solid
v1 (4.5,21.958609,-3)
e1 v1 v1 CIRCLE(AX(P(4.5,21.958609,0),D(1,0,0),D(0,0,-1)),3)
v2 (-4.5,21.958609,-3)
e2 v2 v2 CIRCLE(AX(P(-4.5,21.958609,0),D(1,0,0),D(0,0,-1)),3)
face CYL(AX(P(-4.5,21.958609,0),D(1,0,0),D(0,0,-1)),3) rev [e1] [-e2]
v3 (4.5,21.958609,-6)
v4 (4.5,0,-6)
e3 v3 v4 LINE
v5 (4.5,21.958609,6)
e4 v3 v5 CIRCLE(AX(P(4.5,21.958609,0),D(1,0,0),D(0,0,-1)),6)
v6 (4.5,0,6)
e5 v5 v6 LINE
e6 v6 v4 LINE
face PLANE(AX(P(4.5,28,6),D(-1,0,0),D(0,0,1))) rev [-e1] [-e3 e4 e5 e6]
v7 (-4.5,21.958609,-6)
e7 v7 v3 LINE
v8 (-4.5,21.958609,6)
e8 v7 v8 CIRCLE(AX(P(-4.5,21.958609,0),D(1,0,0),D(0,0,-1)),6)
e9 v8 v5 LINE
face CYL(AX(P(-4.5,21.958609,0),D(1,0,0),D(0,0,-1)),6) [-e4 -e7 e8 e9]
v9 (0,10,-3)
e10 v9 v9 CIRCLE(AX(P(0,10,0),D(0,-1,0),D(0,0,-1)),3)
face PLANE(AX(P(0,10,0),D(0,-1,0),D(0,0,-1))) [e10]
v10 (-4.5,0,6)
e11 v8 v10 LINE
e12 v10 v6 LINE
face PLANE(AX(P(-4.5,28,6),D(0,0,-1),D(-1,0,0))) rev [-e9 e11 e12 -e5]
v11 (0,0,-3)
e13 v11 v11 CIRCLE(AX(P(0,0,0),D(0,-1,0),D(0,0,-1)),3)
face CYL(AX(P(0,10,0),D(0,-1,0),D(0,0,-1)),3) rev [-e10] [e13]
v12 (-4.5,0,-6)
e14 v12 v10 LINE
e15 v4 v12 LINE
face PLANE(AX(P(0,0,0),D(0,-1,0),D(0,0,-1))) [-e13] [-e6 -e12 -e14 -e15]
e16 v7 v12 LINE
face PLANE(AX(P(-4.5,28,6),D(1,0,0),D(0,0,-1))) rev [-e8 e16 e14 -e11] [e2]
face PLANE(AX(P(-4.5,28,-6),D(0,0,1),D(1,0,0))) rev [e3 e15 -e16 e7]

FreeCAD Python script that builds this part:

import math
import FreeCAD as App
import Part
import Sketcher
from FreeCAD import Vector
Q = App.Units.Quantity


def add_polygon(sketch, points):
    """Adds a closed chain of lines whose ends are joined by coincident constraints."""
    first, n = sketch.GeometryCount, len(points)
    for a, b in zip(points, points[1:] + points[:1]):
        sketch.addGeometry(Part.LineSegment(App.Vector(*a, 0), App.Vector(*b, 0)), False)
    for i in range(n):
        sketch.addConstraint(Sketcher.Constraint("Coincident", first + i, 2, first + (i + 1) % n, 1))

doc = App.newDocument("Part")
body = doc.addObject("PartDesign::Body", "Body")

sketch1 = body.newObject("Sketcher::SketchObject", "Sketch")
sketch1.AttachmentSupport = (doc.getObject("XZ_Plane"), [""])
sketch1.MapMode = "FlatFace"
add_polygon(sketch1, [(-4.5, -6), (-4.5, 6), (4.5, 6), (4.5, -6)])
sketch1.addConstraint([
    Sketcher.Constraint("Vertical", 0),
    Sketcher.Constraint("Horizontal", 1),
    Sketcher.Constraint("Vertical", 2),
    Sketcher.Constraint("Horizontal", 3),
    Sketcher.Constraint("Symmetric", 0, 2, 2, 2, -1, 1),
    Sketcher.Constraint("DistanceX", 1, 1, 1, 2, Q("9 mm")),
    Sketcher.Constraint("DistanceY", 0, 1, 0, 2, Q("12 mm")),
])
pad1 = body.newObject("PartDesign::Pad", "Pad")
pad1.Profile = sketch1
pad1.Length = 28
pad1.Reversed = True

sketch2 = body.newObject("Sketcher::SketchObject", "Sketch001")
sketch2.AttachmentSupport = (doc.getObject("YZ_Plane"), [""])
sketch2.MapMode = "FlatFace"
sketch2.AttachmentOffset = App.Placement(Vector(0, 0, 4.5), App.Rotation())
sketch2.addGeometry([
    Part.LineSegment(Vector(32.176, 10.176, 0), Vector(-4.176, 10.176, 0)),
    Part.LineSegment(Vector(-4.176, 10.176, 0), Vector(-4.176, 5.984497, 0)),
    Part.ArcOfCircle(Part.Circle(Vector(-3.744961, 0, 0), Vector(0, 0, 1), 6), math.radians(90), math.radians(94.119669)),
    Part.LineSegment(Vector(-3.744961, 6, 0), Vector(21.958609, 6, 0)),
    Part.ArcOfCircle(Part.Circle(Vector(21.958609, 0, 0), Vector(0, 0, 1), 6), math.radians(-90), math.radians(90)),
    Part.LineSegment(Vector(21.958609, -6, 0), Vector(-3.744961, -6, 0)),
    Part.ArcOfCircle(Part.Circle(Vector(-3.744961, 0, 0), Vector(0, 0, 1), 6), math.radians(-94.119669), math.radians(-90)),
    Part.LineSegment(Vector(-4.176, -5.984497, 0), Vector(-4.176, -10.176, 0)),
    Part.LineSegment(Vector(-4.176, -10.176, 0), Vector(32.176, -10.176, 0)),
    Part.LineSegment(Vector(32.176, -10.176, 0), Vector(32.176, 10.176, 0)),
], False)
sketch2.addConstraint([
    Sketcher.Constraint("Coincident", 0, 2, 1, 1),
    Sketcher.Constraint("Coincident", 1, 2, 2, 2),
    Sketcher.Constraint("Tangent", 2, 1, 3, 1),
    Sketcher.Constraint("Tangent", 3, 2, 4, 2),
    Sketcher.Constraint("Tangent", 4, 1, 5, 1),
    Sketcher.Constraint("Tangent", 5, 2, 6, 2),
    Sketcher.Constraint("Coincident", 6, 1, 7, 1),
    Sketcher.Constraint("Coincident", 7, 2, 8, 1),
    Sketcher.Constraint("Coincident", 8, 2, 9, 1),
    Sketcher.Constraint("Coincident", 9, 2, 0, 1),
    Sketcher.Constraint("Horizontal", 0),
    Sketcher.Constraint("Vertical", 1),
    Sketcher.Constraint("Horizontal", 3),
    Sketcher.Constraint("Horizontal", 5),
    Sketcher.Constraint("Vertical", 7),
    Sketcher.Constraint("Horizontal", 8),
    Sketcher.Constraint("Vertical", 9),
    Sketcher.Constraint("Coincident", 6, 3, 2, 3),
    Sketcher.Constraint("Equal", 2, 4),
    Sketcher.Constraint("Symmetric", 1, 2, 6, 1, -1),
    Sketcher.Constraint("Equal", 1, 7),
    Sketcher.Constraint("Radius", 2, Q("6 mm")),
    Sketcher.Constraint("DistanceX", 0, 2, 0, 1, Q("36.352 mm")),
    Sketcher.Constraint("DistanceY", 9, 1, 9, 2, Q("20.352 mm")),
    Sketcher.Constraint("DistanceX", 0, 2, -1, 1, Q("4.176 mm")),
    Sketcher.Constraint("DistanceX", 3, 1, 3, 2, Q("25.70357 mm")),
    Sketcher.Constraint("DistanceY", 1, 2, 1, 1, Q("4.191503 mm")),
])
pocket1 = body.newObject("PartDesign::Pocket", "Pocket")
pocket1.Profile = sketch2
pocket1.Type = "ThroughAll"

sketch3 = body.newObject("Sketcher::SketchObject", "Sketch002")
sketch3.AttachmentSupport = (doc.getObject("XZ_Plane"), [""])
sketch3.MapMode = "FlatFace"
sketch3.addGeometry(Part.Circle(Vector(0, 0, 0), Vector(0, 0, 1), 3), False)
sketch3.addConstraint([
    Sketcher.Constraint("Coincident", 0, 3, -1, 1),
    Sketcher.Constraint("Diameter", 0, Q("6 mm")),
])
pocket2 = body.newObject("PartDesign::Pocket", "Pocket001")
pocket2.Profile = sketch3
pocket2.Length = 10

sketch4 = body.newObject("Sketcher::SketchObject", "Sketch003")
sketch4.AttachmentSupport = (doc.getObject("YZ_Plane"), [""])
sketch4.MapMode = "FlatFace"
sketch4.AttachmentOffset = App.Placement(Vector(0, 0, 4.5), App.Rotation())
sketch4.addGeometry(Part.Circle(Vector(21.958609, 0, 0), Vector(0, 0, 1), 3), False)
sketch4.addConstraint([
    Sketcher.Constraint("PointOnObject", 0, 3, -1),
    Sketcher.Constraint("Diameter", 0, Q("6 mm")),
    Sketcher.Constraint("DistanceX", -1, 1, 0, 3, Q("21.958609 mm")),
])
pocket3 = body.newObject("PartDesign::Pocket", "Pocket002")
pocket3.Profile = sketch4
pocket3.Type = "ThroughAll"

doc.recompute()
